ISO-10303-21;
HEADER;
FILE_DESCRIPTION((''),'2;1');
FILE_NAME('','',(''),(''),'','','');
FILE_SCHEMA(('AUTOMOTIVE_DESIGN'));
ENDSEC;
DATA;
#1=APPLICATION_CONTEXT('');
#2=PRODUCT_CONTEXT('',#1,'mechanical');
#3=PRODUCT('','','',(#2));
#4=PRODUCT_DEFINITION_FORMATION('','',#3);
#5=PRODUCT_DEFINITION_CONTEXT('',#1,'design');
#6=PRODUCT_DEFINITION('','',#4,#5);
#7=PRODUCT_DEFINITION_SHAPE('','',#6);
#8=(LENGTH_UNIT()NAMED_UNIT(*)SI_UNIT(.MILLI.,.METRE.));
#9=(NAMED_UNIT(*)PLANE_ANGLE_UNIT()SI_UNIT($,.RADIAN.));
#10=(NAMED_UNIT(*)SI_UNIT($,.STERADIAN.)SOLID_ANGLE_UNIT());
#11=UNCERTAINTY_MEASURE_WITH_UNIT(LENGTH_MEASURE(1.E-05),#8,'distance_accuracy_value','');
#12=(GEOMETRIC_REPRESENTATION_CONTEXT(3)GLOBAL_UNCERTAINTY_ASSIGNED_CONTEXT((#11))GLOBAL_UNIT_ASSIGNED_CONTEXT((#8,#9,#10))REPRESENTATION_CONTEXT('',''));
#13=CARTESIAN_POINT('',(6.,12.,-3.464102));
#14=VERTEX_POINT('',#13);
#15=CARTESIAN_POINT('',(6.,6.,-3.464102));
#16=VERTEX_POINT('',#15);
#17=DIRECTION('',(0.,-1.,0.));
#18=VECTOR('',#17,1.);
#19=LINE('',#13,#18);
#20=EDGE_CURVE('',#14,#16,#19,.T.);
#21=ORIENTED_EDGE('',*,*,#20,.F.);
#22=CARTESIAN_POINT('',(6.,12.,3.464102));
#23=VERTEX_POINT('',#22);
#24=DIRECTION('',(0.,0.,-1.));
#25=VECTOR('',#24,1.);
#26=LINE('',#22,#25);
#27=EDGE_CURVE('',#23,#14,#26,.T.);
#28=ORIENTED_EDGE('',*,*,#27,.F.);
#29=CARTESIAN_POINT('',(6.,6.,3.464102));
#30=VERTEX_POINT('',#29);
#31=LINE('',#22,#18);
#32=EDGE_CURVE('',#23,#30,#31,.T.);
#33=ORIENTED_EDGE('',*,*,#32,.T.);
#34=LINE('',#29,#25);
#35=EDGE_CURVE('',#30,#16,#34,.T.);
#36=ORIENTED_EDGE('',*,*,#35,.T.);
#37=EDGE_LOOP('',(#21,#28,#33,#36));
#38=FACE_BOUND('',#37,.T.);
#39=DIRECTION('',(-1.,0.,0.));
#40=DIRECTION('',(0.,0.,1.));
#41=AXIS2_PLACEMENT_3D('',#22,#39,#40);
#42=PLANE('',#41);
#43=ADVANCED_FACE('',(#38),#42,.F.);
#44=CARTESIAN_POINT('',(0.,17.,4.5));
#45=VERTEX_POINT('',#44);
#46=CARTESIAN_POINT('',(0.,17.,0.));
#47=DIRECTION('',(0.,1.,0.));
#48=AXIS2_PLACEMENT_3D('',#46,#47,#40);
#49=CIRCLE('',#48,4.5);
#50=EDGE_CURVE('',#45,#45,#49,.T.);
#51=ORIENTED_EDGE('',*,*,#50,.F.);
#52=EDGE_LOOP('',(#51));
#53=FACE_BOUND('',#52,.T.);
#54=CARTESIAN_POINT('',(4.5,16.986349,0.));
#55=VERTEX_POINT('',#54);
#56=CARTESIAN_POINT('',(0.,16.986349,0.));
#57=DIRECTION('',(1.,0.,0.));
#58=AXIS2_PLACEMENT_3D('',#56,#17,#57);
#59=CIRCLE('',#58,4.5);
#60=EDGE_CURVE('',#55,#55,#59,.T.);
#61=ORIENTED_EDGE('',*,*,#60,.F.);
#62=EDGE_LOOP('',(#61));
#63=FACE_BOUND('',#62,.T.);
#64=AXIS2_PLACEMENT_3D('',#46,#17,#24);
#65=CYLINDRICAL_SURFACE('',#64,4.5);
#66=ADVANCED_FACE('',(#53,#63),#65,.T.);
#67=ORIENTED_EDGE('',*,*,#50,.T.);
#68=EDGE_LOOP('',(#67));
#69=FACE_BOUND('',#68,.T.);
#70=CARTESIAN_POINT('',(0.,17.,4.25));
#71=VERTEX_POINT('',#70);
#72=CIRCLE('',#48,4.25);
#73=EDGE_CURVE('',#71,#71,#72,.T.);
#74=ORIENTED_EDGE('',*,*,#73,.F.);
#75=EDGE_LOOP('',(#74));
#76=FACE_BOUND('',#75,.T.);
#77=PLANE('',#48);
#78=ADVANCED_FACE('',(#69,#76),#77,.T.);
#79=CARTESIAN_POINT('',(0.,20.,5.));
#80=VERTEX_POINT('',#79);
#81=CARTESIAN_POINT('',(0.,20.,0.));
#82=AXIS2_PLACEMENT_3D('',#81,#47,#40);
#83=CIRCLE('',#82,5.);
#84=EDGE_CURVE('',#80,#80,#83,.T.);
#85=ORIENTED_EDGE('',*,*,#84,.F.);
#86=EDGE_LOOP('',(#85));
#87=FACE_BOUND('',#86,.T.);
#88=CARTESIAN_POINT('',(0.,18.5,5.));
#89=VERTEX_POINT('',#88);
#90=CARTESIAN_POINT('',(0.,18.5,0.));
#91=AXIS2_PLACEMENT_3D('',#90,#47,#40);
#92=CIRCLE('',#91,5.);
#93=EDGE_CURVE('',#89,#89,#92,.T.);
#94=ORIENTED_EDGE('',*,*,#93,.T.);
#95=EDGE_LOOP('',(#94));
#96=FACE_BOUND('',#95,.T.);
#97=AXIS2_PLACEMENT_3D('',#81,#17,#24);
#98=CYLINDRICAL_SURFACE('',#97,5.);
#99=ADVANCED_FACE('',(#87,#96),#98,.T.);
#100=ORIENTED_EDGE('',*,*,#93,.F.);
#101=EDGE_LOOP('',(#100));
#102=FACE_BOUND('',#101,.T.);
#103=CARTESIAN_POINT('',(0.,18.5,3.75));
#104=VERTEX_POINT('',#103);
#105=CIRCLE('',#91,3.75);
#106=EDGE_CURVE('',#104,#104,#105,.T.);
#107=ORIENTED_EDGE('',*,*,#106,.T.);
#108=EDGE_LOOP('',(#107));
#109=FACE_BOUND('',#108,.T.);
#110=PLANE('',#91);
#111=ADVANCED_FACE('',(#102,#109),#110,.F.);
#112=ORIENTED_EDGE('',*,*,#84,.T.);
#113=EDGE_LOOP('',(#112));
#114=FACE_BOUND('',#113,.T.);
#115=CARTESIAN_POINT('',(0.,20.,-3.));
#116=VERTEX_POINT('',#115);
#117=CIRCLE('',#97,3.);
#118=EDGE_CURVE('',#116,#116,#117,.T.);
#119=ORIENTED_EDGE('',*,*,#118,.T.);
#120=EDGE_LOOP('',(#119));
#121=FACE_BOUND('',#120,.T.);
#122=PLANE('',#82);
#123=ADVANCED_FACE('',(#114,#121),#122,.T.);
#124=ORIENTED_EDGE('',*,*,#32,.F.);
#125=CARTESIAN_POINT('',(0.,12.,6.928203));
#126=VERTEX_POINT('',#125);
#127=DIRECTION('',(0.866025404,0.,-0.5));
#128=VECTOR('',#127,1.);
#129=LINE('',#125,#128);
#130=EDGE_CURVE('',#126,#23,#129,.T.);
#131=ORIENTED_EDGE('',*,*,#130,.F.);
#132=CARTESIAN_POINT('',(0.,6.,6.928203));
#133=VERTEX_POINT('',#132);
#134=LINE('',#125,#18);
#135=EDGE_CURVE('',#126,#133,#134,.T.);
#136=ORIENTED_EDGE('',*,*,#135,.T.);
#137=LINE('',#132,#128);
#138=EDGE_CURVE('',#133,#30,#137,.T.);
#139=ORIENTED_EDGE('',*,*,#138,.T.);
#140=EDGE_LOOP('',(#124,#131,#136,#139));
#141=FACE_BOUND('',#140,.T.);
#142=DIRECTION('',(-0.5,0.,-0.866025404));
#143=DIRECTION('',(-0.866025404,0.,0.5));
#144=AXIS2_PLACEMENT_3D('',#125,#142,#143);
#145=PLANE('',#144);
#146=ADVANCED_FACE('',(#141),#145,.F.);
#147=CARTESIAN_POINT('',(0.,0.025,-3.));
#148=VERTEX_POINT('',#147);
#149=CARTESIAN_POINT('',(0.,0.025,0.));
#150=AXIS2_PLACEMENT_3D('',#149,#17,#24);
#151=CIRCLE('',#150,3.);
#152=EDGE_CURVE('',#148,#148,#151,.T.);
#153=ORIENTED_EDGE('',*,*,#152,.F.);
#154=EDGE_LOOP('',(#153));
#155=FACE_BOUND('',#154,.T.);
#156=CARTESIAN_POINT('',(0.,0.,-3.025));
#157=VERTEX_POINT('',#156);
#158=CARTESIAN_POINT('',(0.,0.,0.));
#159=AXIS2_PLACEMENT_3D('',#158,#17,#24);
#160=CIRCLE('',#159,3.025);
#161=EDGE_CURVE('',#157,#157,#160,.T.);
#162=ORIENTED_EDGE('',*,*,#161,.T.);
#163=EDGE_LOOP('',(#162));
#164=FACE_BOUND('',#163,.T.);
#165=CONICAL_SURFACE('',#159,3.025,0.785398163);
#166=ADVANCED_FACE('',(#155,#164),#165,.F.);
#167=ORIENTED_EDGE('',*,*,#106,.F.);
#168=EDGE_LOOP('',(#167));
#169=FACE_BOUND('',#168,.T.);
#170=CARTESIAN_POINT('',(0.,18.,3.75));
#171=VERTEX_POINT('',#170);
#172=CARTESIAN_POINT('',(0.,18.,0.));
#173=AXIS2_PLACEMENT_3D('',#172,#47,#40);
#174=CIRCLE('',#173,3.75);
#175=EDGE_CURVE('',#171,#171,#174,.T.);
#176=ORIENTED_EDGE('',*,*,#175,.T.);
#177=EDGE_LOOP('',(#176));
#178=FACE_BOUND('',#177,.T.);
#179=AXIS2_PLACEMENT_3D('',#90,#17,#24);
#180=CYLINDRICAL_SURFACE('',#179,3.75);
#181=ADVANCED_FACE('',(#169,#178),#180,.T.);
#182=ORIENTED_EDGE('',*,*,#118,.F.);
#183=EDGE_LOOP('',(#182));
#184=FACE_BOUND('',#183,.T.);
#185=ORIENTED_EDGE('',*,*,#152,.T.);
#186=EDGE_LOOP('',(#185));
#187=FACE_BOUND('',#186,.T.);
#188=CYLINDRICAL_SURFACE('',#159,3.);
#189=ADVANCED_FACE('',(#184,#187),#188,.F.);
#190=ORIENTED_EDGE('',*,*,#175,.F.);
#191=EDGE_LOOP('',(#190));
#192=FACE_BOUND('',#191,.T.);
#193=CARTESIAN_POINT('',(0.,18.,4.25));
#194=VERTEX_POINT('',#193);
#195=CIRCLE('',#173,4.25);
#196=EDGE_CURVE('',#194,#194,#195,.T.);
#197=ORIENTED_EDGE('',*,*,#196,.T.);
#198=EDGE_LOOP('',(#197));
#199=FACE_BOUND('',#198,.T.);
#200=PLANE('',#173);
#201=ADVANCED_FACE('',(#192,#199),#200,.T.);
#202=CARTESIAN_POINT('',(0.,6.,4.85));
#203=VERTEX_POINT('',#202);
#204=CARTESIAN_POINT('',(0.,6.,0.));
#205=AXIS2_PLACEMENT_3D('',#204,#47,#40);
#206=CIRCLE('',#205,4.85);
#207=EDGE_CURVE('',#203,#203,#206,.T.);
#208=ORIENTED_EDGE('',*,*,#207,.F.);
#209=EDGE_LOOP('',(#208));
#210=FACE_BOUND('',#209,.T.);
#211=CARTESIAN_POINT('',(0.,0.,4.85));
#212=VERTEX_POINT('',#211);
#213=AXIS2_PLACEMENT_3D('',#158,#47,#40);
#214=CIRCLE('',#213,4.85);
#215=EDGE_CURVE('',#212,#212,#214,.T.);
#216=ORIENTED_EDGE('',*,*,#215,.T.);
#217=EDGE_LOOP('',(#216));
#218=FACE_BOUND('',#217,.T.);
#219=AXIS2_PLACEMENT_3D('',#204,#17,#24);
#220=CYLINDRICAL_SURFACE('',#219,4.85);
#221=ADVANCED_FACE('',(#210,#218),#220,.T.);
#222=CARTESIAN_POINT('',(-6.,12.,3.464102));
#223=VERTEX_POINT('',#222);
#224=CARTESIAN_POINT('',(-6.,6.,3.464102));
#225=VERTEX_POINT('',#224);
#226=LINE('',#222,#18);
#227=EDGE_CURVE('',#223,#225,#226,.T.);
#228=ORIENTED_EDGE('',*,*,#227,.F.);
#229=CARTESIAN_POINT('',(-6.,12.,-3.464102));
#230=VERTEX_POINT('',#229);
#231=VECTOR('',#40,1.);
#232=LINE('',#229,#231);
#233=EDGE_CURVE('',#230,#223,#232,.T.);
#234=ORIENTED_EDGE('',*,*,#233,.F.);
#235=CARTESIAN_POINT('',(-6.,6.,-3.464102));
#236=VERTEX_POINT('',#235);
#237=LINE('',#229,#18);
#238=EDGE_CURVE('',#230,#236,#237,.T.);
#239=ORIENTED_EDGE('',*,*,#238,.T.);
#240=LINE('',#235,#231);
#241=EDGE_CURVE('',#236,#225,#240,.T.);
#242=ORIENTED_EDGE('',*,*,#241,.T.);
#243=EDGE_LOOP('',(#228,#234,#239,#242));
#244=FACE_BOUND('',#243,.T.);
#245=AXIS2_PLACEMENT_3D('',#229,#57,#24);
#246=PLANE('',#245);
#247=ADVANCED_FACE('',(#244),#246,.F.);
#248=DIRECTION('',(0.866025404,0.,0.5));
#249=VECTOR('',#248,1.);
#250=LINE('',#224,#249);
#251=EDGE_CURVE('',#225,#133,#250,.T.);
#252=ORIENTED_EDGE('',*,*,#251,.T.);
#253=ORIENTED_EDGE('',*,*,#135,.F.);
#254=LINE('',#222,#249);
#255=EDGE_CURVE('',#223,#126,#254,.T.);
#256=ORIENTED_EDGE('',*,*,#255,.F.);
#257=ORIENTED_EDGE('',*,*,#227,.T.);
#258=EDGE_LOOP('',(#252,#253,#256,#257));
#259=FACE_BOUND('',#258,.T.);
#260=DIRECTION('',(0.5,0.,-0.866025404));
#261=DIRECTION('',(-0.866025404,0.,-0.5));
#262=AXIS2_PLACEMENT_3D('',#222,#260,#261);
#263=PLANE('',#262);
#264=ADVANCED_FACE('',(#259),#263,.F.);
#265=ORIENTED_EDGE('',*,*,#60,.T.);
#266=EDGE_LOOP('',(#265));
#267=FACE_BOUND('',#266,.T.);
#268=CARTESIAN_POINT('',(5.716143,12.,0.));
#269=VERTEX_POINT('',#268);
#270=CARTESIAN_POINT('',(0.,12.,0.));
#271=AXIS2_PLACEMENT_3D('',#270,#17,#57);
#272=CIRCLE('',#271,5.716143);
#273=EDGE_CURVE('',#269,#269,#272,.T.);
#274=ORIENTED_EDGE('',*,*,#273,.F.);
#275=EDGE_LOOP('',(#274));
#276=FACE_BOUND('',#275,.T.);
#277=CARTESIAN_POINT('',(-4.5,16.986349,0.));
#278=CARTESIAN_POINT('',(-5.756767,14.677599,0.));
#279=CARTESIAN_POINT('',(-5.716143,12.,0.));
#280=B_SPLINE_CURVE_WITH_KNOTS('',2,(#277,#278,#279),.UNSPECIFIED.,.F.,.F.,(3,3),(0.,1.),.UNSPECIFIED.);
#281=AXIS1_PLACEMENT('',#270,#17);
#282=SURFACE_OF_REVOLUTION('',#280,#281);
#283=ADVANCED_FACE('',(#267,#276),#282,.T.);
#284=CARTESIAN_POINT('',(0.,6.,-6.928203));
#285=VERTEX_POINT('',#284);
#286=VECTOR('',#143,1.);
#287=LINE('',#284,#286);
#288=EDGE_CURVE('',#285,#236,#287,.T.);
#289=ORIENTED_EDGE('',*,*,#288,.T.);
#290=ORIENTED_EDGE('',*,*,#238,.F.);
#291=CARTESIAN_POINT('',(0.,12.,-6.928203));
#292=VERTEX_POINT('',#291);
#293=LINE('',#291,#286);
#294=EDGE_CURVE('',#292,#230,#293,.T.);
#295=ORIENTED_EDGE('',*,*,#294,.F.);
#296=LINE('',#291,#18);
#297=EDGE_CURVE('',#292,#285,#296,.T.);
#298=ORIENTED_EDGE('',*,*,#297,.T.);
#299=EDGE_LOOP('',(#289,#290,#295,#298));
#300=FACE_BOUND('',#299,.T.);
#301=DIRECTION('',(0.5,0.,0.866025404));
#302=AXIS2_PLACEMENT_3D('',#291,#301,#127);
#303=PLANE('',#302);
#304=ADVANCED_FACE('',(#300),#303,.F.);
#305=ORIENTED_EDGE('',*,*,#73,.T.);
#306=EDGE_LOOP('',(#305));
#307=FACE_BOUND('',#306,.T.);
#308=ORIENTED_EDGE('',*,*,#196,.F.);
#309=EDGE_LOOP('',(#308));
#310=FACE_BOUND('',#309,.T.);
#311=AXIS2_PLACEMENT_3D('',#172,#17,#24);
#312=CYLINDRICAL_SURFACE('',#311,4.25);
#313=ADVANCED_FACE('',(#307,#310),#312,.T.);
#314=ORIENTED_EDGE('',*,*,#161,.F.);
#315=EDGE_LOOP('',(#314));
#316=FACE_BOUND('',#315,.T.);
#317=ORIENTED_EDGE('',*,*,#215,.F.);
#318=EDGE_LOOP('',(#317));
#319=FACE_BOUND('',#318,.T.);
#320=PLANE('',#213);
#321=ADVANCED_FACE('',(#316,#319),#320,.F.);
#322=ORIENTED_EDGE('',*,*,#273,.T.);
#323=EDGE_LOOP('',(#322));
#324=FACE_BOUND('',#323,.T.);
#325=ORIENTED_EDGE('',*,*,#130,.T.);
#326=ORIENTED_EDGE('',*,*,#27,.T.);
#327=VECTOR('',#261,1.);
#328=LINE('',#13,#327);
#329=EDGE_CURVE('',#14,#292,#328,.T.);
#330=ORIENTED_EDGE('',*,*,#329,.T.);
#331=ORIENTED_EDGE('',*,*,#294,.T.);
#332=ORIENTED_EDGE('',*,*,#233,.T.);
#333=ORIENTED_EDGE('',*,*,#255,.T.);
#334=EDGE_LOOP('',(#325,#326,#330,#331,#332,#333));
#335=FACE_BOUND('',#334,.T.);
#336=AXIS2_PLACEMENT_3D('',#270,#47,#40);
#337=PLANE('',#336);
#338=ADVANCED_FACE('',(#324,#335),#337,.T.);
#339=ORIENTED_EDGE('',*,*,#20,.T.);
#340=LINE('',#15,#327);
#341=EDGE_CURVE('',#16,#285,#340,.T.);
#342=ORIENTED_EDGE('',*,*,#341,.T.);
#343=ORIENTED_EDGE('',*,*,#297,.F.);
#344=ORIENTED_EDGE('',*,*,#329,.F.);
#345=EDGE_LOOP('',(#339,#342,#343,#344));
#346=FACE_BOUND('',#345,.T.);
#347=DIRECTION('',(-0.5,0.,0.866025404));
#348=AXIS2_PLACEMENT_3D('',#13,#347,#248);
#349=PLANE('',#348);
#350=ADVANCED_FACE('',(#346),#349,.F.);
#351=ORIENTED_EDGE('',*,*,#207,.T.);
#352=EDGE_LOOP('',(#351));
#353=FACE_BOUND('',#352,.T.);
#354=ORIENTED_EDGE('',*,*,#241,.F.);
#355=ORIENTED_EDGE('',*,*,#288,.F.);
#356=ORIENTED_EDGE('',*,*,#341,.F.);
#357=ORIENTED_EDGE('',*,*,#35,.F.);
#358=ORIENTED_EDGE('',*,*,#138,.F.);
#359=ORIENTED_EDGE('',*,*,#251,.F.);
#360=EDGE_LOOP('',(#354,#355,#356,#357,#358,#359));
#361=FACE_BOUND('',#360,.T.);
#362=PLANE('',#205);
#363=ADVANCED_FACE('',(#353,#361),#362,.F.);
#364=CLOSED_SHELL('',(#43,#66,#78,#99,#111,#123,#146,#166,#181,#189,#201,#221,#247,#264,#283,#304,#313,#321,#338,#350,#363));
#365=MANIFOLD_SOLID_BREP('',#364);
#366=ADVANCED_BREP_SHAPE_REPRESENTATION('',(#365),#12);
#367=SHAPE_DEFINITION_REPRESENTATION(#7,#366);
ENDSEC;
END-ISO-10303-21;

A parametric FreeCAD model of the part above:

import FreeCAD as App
import Part
import Sketcher

V = App.Vector
Q = App.Units.Quantity

doc = App.newDocument("Part")
body = doc.addObject("PartDesign::Body", "Body")

# Sketch on XZ plane
sketch1 = body.newObject("Sketcher::SketchObject", "Sketch")
sketch1.AttachmentSupport = (doc.getObject("XZ_Plane"), [""])
sketch1.MapMode = "FlatFace"
sketch1.addGeometry(Part.Circle(V(0, 0, 0), V(0, 0, 1), 4.8), False)
sketch1.addConstraint([
    Sketcher.Constraint("Coincident", 0, 3, -1, 1),
    Sketcher.Constraint("Diameter", 0, 9.7),
])
pad1 = body.newObject("PartDesign::Pad", "Pad")
pad1.Profile = sketch1
pad1.Length = 6
pad1.Reversed = True

# Sketch on XZ plane
sketch2 = body.newObject("Sketcher::SketchObject", "Sketch001")
sketch2.AttachmentSupport = (doc.getObject("XZ_Plane"), [""])
sketch2.MapMode = "FlatFace"
sketch2.AttachmentOffset = App.Placement(V(0, 0, -6), App.Rotation())
sketch2.addGeometry([
    Part.LineSegment(V(6, -3, 0), V(0, -7, 0)),  # 0
    Part.LineSegment(V(0, -7, 0), V(-6, -3, 0)),  # 1
    Part.LineSegment(V(-6, -3, 0), V(-6, 3, 0)),  # 2
    Part.LineSegment(V(-6, 3, 0), V(0, 7, 0)),  # 3
    Part.LineSegment(V(0, 7, 0), V(6, 3, 0)),  # 4
    Part.LineSegment(V(6, 3, 0), V(6, -3, 0)),  # 5
], False)
sketch2.addConstraint([
    Sketcher.Constraint("Coincident", 0, 2, 1, 1),
    Sketcher.Constraint("Coincident", 1, 2, 2, 1),
    Sketcher.Constraint("Coincident", 2, 2, 3, 1),
    Sketcher.Constraint("Coincident", 3, 2, 4, 1),
    Sketcher.Constraint("Coincident", 4, 2, 5, 1),
    Sketcher.Constraint("Coincident", 5, 2, 0, 1),
    Sketcher.Constraint("Vertical", 2),
    Sketcher.Constraint("Vertical", 5),
    Sketcher.Constraint("Symmetric", 0, 2, 3, 2, -1, 1),
    Sketcher.Constraint("Symmetric", 1, 2, 4, 2, -1, 1),
    Sketcher.Constraint("PointOnObject", 0, 2, -2),
    Sketcher.Constraint("Parallel", 0, 3),
    Sketcher.Constraint("Horizontal", 2, 2, 4, 2),
    Sketcher.Constraint("Angle", 0, Q("-150 deg")),
    Sketcher.Constraint("DistanceX", 1, 2, -1, 1, 6.0),
    Sketcher.Constraint("DistanceY", 1, 2, -1, 1, 3.464102),
])
pad2 = body.newObject("PartDesign::Pad", "Pad001")
pad2.Profile = sketch2
pad2.Length = 6
pad2.Reversed = True

# Sketch on XZ plane
sketch3 = body.newObject("Sketcher::SketchObject", "Sketch002")
sketch3.AttachmentSupport = (doc.getObject("XZ_Plane"), [""])
sketch3.MapMode = "FlatFace"
sketch3.AttachmentOffset = App.Placement(V(0, 0, -12), App.Rotation())
sketch3.addGeometry(Part.Circle(V(0, 0, 0), V(0, 0, 1), 4.5), False)
sketch3.addConstraint([
    Sketcher.Constraint("Coincident", 0, 3, -1, 1),
    Sketcher.Constraint("Diameter", 0, 9.0),
])
pad3 = body.newObject("PartDesign::Pad", "Pad002")
pad3.Profile = sketch3
pad3.Length = 5
pad3.Reversed = True

# Sketch on XZ plane
sketch4 = body.newObject("Sketcher::SketchObject", "Sketch003")
sketch4.AttachmentSupport = (doc.getObject("XZ_Plane"), [""])
sketch4.MapMode = "FlatFace"
sketch4.AttachmentOffset = App.Placement(V(0, 0, -17), App.Rotation())
sketch4.addGeometry(Part.Circle(V(0, 0, 0), V(0, 0, 1), 4.2), False)
sketch4.addConstraint([
    Sketcher.Constraint("Coincident", 0, 3, -1, 1),
    Sketcher.Constraint("Diameter", 0, 8.5),
])
pad4 = body.newObject("PartDesign::Pad", "Pad003")
pad4.Profile = sketch4
pad4.Length = 1
pad4.Reversed = True

# Sketch on XZ plane
sketch5 = body.newObject("Sketcher::SketchObject", "Sketch004")
sketch5.AttachmentSupport = (doc.getObject("XZ_Plane"), [""])
sketch5.MapMode = "FlatFace"
sketch5.AttachmentOffset = App.Placement(V(0, 0, -18), App.Rotation())
sketch5.addGeometry(Part.Circle(V(0, 0, 0), V(0, 0, 1), 3.8), False)
sketch5.addConstraint([
    Sketcher.Constraint("Coincident", 0, 3, -1, 1),
    Sketcher.Constraint("Diameter", 0, 7.5),
])
pad5 = body.newObject("PartDesign::Pad", "Pad004")
pad5.Profile = sketch5
pad5.Length = 0.5
pad5.Reversed = True

# Sketch on XZ plane
sketch6 = body.newObject("Sketcher::SketchObject", "Sketch005")
sketch6.AttachmentSupport = (doc.getObject("XZ_Plane"), [""])
sketch6.MapMode = "FlatFace"
sketch6.AttachmentOffset = App.Placement(V(0, 0, -18.5), App.Rotation())
sketch6.addGeometry(Part.Circle(V(0, 0, 0), V(0, 0, 1), 5), False)
sketch6.addConstraint([
    Sketcher.Constraint("Coincident", 0, 3, -1, 1),
    Sketcher.Constraint("Diameter", 0, 10.0),
])
pad6 = body.newObject("PartDesign::Pad", "Pad005")
pad6.Profile = sketch6
pad6.Length = 1.5
pad6.Reversed = True

# Sketch on XY plane
sketch7 = body.newObject("Sketcher::SketchObject", "Sketch006")
sketch7.AttachmentSupport = (doc.getObject("XY_Plane"), [""])
sketch7.MapMode = "FlatFace"
sketch7.addGeometry([
    Part.LineSegment(V(-5.716143, 12, 0), V(-4.5, 12, 0)),
    Part.LineSegment(V(-4.5, 12, 0), V(-4.5, 16.986349, 0)),
    Part.BSplineCurve([V(-4.5, 16.986349, 0), V(-5.756767, 14.677599, 0), V(-5.716143, 12, 0)], [3, 3], [0, 1], False, 2, [1, 1, 1], False),
], False)
sketch7.addConstraint([
    Sketcher.Constraint("Block", 2),
    Sketcher.Constraint("Coincident", 0, 2, 1, 1),
    Sketcher.Constraint("Coincident", 1, 2, 2, 1),
    Sketcher.Constraint("Coincident", 2, 2, 0, 1),
    Sketcher.Constraint("Horizontal", 0),
    Sketcher.Constraint("Vertical", 1),
])
revolution = body.newObject("PartDesign::Revolution", "Revolution")
revolution.Profile = sketch7
revolution.ReferenceAxis = (sketch7, ["V_Axis"])
revolution.Angle = 360

# Sketch on XZ plane
sketch8 = body.newObject("Sketcher::SketchObject", "Sketch007")
sketch8.AttachmentSupport = (doc.getObject("XZ_Plane"), [""])
sketch8.MapMode = "FlatFace"
sketch8.addGeometry(Part.Circle(V(0, 0, 0), V(0, 0, 1), 3), False)
sketch8.addConstraint([
    Sketcher.Constraint("Coincident", 0, 3, -1, 1),
    Sketcher.Constraint("Diameter", 0, 6.0),
])
doc.recompute()
hole = body.newObject("PartDesign::Hole", "Hole")
hole.Profile = sketch8
hole.ThreadType = "None"
hole.Diameter = 6
hole.DepthType = "ThroughAll"
hole.HoleCutType = "Countersink"
hole.HoleCutDiameter = 6.05
hole.HoleCutCountersinkAngle = 90

doc.recompute()
